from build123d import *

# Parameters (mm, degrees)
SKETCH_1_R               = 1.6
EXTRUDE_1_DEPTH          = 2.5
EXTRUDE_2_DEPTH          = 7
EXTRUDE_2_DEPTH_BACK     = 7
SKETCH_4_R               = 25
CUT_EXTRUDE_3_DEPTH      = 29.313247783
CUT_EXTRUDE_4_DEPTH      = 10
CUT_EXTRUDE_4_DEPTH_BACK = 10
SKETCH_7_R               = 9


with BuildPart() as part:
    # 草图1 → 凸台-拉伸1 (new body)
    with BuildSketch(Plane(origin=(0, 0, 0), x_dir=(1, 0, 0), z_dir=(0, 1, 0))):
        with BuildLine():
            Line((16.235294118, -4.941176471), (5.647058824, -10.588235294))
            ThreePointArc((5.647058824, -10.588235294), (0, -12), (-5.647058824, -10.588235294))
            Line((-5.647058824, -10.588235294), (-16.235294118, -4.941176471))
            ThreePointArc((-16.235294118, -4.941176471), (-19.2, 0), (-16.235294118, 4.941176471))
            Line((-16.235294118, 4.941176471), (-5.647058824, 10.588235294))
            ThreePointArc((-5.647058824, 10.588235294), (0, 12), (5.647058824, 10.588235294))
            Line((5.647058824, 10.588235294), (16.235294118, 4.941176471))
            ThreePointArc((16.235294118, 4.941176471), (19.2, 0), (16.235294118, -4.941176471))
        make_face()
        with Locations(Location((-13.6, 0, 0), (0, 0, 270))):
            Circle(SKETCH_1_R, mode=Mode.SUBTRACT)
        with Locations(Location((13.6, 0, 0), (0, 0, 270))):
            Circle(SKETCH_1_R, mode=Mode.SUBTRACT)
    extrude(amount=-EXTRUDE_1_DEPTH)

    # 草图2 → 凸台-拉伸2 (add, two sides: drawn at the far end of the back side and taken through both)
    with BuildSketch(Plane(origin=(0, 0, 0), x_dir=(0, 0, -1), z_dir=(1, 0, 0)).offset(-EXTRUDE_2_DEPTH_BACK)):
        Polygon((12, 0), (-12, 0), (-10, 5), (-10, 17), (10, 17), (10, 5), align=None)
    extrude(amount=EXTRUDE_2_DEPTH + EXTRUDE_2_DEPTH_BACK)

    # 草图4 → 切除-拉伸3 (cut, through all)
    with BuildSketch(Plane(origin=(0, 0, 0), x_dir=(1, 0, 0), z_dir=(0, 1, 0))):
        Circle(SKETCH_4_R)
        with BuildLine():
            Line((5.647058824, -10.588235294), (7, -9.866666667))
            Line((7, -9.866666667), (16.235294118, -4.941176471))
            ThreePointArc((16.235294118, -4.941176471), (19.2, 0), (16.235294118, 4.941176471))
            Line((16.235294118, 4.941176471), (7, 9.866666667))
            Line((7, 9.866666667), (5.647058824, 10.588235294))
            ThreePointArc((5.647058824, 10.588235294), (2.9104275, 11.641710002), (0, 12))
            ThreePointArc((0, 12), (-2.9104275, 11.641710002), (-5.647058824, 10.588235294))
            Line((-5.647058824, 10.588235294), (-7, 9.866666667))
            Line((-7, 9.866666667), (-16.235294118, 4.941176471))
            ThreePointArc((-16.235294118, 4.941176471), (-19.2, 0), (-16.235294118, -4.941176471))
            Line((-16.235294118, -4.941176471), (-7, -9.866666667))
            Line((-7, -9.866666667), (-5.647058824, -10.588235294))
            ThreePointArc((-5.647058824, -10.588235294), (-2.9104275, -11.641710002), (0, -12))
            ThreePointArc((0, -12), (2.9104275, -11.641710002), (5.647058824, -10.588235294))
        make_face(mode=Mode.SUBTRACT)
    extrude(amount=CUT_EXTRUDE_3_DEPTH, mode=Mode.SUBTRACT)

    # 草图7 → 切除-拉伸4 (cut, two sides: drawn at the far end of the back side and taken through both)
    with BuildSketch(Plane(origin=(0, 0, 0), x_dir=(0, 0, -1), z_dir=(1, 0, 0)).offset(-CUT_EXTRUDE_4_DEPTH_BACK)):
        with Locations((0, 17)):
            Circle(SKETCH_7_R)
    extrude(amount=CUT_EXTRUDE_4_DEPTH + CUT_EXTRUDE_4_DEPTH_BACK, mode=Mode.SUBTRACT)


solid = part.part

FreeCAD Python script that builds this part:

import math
import FreeCAD as App
import Part
import Sketcher
from FreeCAD import Vector

doc = App.newDocument("Part")
body = doc.addObject("PartDesign::Body", "Body")

sketch1 = body.newObject("Sketcher::SketchObject", "Sketch")
sketch1.AttachmentSupport = (doc.getObject("XZ_Plane"), [""])
sketch1.MapMode = "FlatFace"
sketch1.addGeometry([
    Part.LineSegment(Vector(5.6, 10.6, 0), Vector(16.2, 4.9, 0)),
    Part.ArcOfCircle(Part.Circle(Vector(13.6, 0, 0), Vector(0, 0, 1), 5.6), math.radians(-62), math.radians(62)),
    Part.LineSegment(Vector(16.2, -4.9, 0), Vector(5.6, -10.6, 0)),
    Part.ArcOfCircle(Part.Circle(Vector(0, 0, 0), Vector(0, 0, 1), 12), math.radians(-118), math.radians(-62)),
    Part.LineSegment(Vector(-5.6, -10.6, 0), Vector(-16.2, -4.9, 0)),
    Part.ArcOfCircle(Part.Circle(Vector(-13.6, 0, 0), Vector(0, 0, 1), 5.6), math.radians(118), math.radians(242)),
    Part.LineSegment(Vector(-16.2, 4.9, 0), Vector(-5.6, 10.6, 0)),
    Part.ArcOfCircle(Part.Circle(Vector(0, 0, 0), Vector(0, 0, 1), 12), math.radians(62), math.radians(118)),
    Part.Circle(Vector(13.6, 0, 0), Vector(0, 0, 1), 1.6),
    Part.Circle(Vector(-13.6, 0, 0), Vector(0, 0, 1), 1.6),
], False)
sketch1.addConstraint([
    Sketcher.Constraint("Tangent", 0, 2, 1, 2),
    Sketcher.Constraint("Tangent", 1, 1, 2, 1),
    Sketcher.Constraint("Tangent", 2, 2, 3, 2),
    Sketcher.Constraint("Tangent", 3, 1, 4, 1),
    Sketcher.Constraint("Tangent", 4, 2, 5, 2),
    Sketcher.Constraint("Tangent", 5, 1, 6, 1),
    Sketcher.Constraint("Tangent", 6, 2, 7, 2),
    Sketcher.Constraint("Tangent", 7, 1, 0, 1),
    Sketcher.Constraint("Coincident", 3, 3, -1, 1),
    Sketcher.Constraint("Coincident", 7, 3, -1, 1),
    Sketcher.Constraint("Coincident", 8, 3, 1, 3),
    Sketcher.Constraint("Coincident", 9, 3, 5, 3),
    Sketcher.Constraint("Equal", 1, 5),
    Sketcher.Constraint("Equal", 3, 7),
    Sketcher.Constraint("Equal", 8, 9),
    Sketcher.Constraint("Symmetric", 1, 3, 5, 3, -1, 1),
    Sketcher.Constraint("PointOnObject", 1, 3, -1),
    Sketcher.Constraint("Radius", 3, 12.0),
    Sketcher.Constraint("Diameter", 8, 3.2),
    Sketcher.Constraint("Radius", 1, 5.6),
    Sketcher.Constraint("Distance", 0, 12.0),
])
pad1 = body.newObject("PartDesign::Pad", "Pad")
pad1.Profile = sketch1
pad1.Length = 2.5

sketch2 = body.newObject("Sketcher::SketchObject", "Sketch001")
sketch2.AttachmentSupport = (doc.getObject("YZ_Plane"), [""])
sketch2.MapMode = "FlatFace"
sketch2.addGeometry([
    Part.LineSegment(Vector(0, 12, 0), Vector(0, -12, 0)),
    Part.LineSegment(Vector(0, -12, 0), Vector(5, -10, 0)),
    Part.LineSegment(Vector(5, -10, 0), Vector(17, -10, 0)),
    Part.LineSegment(Vector(17, -10, 0), Vector(17, 10, 0)),
    Part.LineSegment(Vector(17, 10, 0), Vector(5, 10, 0)),
    Part.LineSegment(Vector(5, 10, 0), Vector(0, 12, 0)),
], False)
sketch2.addConstraint([
    Sketcher.Constraint("Coincident", 0, 2, 1, 1),
    Sketcher.Constraint("Coincident", 1, 2, 2, 1),
    Sketcher.Constraint("Coincident", 2, 2, 3, 1),
    Sketcher.Constraint("Coincident", 3, 2, 4, 1),
    Sketcher.Constraint("Coincident", 4, 2, 5, 1),
    Sketcher.Constraint("Coincident", 5, 2, 0, 1),
    Sketcher.Constraint("Vertical", 0),
    Sketcher.Constraint("Horizontal", 2),
    Sketcher.Constraint("Vertical", 3),
    Sketcher.Constraint("Horizontal", 4),
    Sketcher.Constraint("Symmetric", 0, 2, 5, 2, -1, 1),
    Sketcher.Constraint("Symmetric", 1, 2, 4, 2, -1),
    Sketcher.Constraint("DistanceX", 2, 1, 2, 2, 12.0),
    Sketcher.Constraint("DistanceY", 0, 2, 0, 1, 24.0),
    Sketcher.Constraint("DistanceY", 3, 1, 3, 2, 20.0),
    Sketcher.Constraint("DistanceX", -1, 1, 1, 2, 5.0),
])
pad2 = body.newObject("PartDesign::Pad", "Pad001")
pad2.Profile = sketch2
pad2.Type = "TwoLengths"
pad2.Length = 7
pad2.Length2 = 7

sketch3 = body.newObject("Sketcher::SketchObject", "Sketch002")
sketch3.AttachmentSupport = (doc.getObject("XZ_Plane"), [""])
sketch3.MapMode = "FlatFace"
sketch3.addGeometry([
    Part.Circle(Vector(0, 0, 0), Vector(0, 0, 1), 25),
    Part.LineSegment(Vector(7, 9.9, 0), Vector(5.6, 10.6, 0)),
    Part.ArcOfCircle(Part.Circle(Vector(0, 0, 0), Vector(0, 0, 1), 12), math.radians(62), math.radians(90)),
    Part.ArcOfCircle(Part.Circle(Vector(0, 0, 0), Vector(0, 0, 1), 12), math.radians(90), math.radians(118)),
    Part.LineSegment(Vector(-5.6, 10.6, 0), Vector(-7, 9.9, 0)),
    Part.LineSegment(Vector(-7, 9.9, 0), Vector(-16.2, 4.9, 0)),
    Part.ArcOfCircle(Part.Circle(Vector(-13.6, 0, 0), Vector(0, 0, 1), 5.6), math.radians(118), math.radians(242)),
    Part.LineSegment(Vector(-16.2, -4.9, 0), Vector(-7, -9.9, 0)),
    Part.LineSegment(Vector(-7, -9.9, 0), Vector(-5.6, -10.6, 0)),
    Part.ArcOfCircle(Part.Circle(Vector(0, 0, 0), Vector(0, 0, 1), 12), math.radians(-118), math.radians(-90)),
    Part.ArcOfCircle(Part.Circle(Vector(0, 0, 0), Vector(0, 0, 1), 12), math.radians(-90), math.radians(-62)),
    Part.LineSegment(Vector(5.6, -10.6, 0), Vector(7, -9.9, 0)),
    Part.LineSegment(Vector(7, -9.9, 0), Vector(16.2, -4.9, 0)),
    Part.ArcOfCircle(Part.Circle(Vector(13.6, 0, 0), Vector(0, 0, 1), 5.6), math.radians(-62), math.radians(62)),
    Part.LineSegment(Vector(16.2, 4.9, 0), Vector(7, 9.9, 0)),
], False)
sketch3.addConstraint([
    Sketcher.Constraint("Tangent", 1, 2, 2, 1),
    Sketcher.Constraint("Tangent", 2, 2, 3, 1),
    Sketcher.Constraint("Tangent", 3, 2, 4, 1),
    Sketcher.Constraint("Coincident", 4, 2, 5, 1),
    Sketcher.Constraint("Tangent", 5, 2, 6, 1),
    Sketcher.Constraint("Tangent", 6, 2, 7, 1),
    Sketcher.Constraint("Coincident", 7, 2, 8, 1),
    Sketcher.Constraint("Tangent", 8, 2, 9, 1),
    Sketcher.Constraint("Tangent", 9, 2, 10, 1),
    Sketcher.Constraint("Tangent", 10, 2, 11, 1),
    Sketcher.Constraint("Coincident", 11, 2, 12, 1),
    Sketcher.Constraint("Tangent", 12, 2, 13, 1),
    Sketcher.Constraint("Tangent", 13, 2, 14, 1),
    Sketcher.Constraint("Coincident", 14, 2, 1, 1),
    Sketcher.Constraint("Coincident", 0, 3, -1, 1),
    Sketcher.Constraint("Coincident", 2, 3, -1, 1),
    Sketcher.Constraint("Coincident", 9, 3, -1, 1),
    Sketcher.Constraint("Equal", 2, 3),
    Sketcher.Constraint("Equal", 3, 9),
    Sketcher.Constraint("Equal", 9, 10),
    Sketcher.Constraint("Equal", 6, 13),
    Sketcher.Constraint("Symmetric", 6, 3, 13, 3, -1, 1),
    Sketcher.Constraint("Symmetric", 4, 2, 11, 2, -1, 1),
    Sketcher.Constraint("Symmetric", 7, 2, 14, 2, -1, 1),
    Sketcher.Constraint("Symmetric", 7, 2, 11, 2, -2),
    Sketcher.Constraint("PointOnObject", 6, 3, -1),
    Sketcher.Constraint("PointOnObject", 2, 2, -2),
    Sketcher.Constraint("PointOnObject", 9, 2, -2),
    Sketcher.Constraint("Parallel", 4, 5),
    Sketcher.Constraint("Diameter", 0, 50.0),
    Sketcher.Constraint("Radius", 2, 12.0),
    Sketcher.Constraint("Radius", 6, 5.6),
    Sketcher.Constraint("DistanceX", 4, 2, -1, 1, 7.0),
    Sketcher.Constraint("DistanceX", 6, 3, -1, 1, 13.6),
])
pocket1 = body.newObject("PartDesign::Pocket", "Pocket")
pocket1.Profile = sketch3
pocket1.Type = "ThroughAll"

sketch4 = body.newObject("Sketcher::SketchObject", "Sketch003")
sketch4.AttachmentSupport = (doc.getObject("YZ_Plane"), [""])
sketch4.MapMode = "FlatFace"
sketch4.addGeometry(Part.Circle(Vector(17, 0, 0), Vector(0, 0, 1), 9), False)
sketch4.addConstraint([
    Sketcher.Constraint("PointOnObject", 0, 3, -1),
    Sketcher.Constraint("Diameter", 0, 18.0),
    Sketcher.Constraint("DistanceX", -1, 1, 0, 3, 17.0),
])
pocket2 = body.newObject("PartDesign::Pocket", "Pocket001")
pocket2.Profile = sketch4
pocket2.Type = "ThroughAll"
pocket2.Midplane = True

doc.recompute()
